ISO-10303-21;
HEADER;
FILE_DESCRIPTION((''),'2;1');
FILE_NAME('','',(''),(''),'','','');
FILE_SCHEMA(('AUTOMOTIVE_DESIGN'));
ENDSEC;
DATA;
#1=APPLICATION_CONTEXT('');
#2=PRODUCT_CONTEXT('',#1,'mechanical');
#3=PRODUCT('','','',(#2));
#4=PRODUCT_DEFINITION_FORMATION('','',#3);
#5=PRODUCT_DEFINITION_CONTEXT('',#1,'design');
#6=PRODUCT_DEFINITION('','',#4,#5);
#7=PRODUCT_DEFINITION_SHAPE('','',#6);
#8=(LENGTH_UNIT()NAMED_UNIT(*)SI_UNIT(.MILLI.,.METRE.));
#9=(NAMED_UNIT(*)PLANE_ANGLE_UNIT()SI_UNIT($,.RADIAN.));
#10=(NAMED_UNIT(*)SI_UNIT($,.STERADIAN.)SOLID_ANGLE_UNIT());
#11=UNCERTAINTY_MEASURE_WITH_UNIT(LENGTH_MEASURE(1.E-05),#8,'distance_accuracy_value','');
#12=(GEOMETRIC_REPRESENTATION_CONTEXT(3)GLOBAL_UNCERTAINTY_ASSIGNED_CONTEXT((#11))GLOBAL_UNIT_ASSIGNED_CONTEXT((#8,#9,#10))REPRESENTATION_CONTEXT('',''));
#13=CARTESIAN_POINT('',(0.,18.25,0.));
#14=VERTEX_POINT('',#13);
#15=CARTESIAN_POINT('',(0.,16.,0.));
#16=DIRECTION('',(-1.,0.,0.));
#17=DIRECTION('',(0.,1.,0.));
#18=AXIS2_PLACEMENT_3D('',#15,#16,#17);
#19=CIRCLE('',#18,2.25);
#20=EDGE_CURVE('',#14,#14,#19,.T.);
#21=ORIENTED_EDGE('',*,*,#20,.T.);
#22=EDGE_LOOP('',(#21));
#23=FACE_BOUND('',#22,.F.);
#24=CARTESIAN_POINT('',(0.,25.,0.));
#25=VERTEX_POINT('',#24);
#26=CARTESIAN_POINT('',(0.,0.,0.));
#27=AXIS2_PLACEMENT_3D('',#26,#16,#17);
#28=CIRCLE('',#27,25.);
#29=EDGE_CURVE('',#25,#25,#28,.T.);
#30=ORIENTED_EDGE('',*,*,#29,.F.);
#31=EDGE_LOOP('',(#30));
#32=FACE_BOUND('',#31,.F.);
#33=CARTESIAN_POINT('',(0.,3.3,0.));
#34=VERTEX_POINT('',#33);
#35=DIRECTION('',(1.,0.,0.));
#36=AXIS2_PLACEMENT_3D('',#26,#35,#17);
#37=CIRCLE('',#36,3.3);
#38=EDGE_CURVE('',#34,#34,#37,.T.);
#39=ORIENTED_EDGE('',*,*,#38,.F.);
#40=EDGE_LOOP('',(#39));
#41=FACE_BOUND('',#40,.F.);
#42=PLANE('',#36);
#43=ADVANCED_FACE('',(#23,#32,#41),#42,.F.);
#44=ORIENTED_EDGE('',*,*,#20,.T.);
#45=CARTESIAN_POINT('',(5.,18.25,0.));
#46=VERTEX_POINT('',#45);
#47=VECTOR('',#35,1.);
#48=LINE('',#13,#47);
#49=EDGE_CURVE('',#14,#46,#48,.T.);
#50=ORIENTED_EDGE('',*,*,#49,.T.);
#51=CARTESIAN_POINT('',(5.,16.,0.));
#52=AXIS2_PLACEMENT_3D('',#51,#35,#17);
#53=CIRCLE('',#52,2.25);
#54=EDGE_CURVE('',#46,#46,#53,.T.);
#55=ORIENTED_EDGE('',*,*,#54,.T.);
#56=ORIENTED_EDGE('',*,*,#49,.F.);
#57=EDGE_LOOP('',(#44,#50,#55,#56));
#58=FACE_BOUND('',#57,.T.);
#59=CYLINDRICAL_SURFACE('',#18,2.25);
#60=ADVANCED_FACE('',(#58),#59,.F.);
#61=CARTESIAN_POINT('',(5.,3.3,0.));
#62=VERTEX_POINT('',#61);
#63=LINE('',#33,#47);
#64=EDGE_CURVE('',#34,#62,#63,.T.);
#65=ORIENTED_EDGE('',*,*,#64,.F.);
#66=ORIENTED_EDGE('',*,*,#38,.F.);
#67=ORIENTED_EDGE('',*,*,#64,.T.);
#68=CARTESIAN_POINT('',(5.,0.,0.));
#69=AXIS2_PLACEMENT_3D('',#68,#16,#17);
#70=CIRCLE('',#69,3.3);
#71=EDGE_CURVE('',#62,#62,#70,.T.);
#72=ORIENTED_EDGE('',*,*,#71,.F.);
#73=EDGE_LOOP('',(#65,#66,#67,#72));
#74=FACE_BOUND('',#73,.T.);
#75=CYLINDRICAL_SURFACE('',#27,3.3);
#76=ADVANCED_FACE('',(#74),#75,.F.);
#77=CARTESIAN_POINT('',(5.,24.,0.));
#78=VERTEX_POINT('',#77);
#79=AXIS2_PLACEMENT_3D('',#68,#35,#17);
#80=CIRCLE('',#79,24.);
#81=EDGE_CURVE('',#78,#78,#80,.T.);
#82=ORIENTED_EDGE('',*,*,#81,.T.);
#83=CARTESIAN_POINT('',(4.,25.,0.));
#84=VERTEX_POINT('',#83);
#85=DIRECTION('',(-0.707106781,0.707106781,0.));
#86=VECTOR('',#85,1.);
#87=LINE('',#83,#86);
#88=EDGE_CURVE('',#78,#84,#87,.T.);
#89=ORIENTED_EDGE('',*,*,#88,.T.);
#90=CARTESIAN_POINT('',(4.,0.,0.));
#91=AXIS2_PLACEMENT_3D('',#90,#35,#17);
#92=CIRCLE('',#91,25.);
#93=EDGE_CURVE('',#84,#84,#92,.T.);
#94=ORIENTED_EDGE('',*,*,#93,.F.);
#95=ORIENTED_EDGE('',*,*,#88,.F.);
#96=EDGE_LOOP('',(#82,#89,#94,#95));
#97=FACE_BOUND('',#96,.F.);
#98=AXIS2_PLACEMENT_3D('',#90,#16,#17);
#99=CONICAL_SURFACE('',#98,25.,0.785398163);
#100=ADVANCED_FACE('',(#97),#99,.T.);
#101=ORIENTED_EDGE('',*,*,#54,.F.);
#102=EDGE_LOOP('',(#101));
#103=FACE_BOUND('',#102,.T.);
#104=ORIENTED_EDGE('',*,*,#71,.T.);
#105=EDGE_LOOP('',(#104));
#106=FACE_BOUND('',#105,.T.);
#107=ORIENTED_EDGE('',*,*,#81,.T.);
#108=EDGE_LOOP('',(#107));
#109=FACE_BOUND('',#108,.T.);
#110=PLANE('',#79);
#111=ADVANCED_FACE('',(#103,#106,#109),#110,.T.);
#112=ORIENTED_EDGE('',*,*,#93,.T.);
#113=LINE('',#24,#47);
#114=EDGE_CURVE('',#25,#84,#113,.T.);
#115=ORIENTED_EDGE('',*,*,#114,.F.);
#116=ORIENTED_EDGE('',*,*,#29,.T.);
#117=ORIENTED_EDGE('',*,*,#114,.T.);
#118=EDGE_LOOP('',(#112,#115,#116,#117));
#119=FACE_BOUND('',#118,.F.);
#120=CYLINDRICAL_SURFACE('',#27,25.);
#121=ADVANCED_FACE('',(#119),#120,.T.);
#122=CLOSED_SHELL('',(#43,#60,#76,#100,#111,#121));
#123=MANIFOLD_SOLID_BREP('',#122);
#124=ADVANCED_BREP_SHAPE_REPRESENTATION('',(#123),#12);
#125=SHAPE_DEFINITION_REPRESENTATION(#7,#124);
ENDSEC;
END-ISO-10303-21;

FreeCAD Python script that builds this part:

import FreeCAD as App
import Part
import Sketcher
from FreeCAD import Vector


def edges_at(feature, points):
    """Names of the edges that pass closest to the given points."""
    edges = feature.Shape.Edges
    near = lambda p: min(range(len(edges)), key=lambda i: edges[i].distToShape(Part.Vertex(*p))[0])
    return sorted({f"Edge{near(p) + 1}" for p in points})

doc = App.newDocument("Part")
body = doc.addObject("PartDesign::Body", "Body")

# Sketch on YZ plane
sketch1 = body.newObject("Sketcher::SketchObject", "Sketch")
sketch1.AttachmentSupport = (doc.getObject("YZ_Plane"), [""])
sketch1.MapMode = "FlatFace"
sketch1.addGeometry(Part.Circle(Vector(0, 0, 0), Vector(0, 0, 1), 25), False)
sketch1.addGeometry(Part.Circle(Vector(16, 0, 0), Vector(0, 0, 1), 2.2), False)
sketch1.addGeometry(Part.Circle(Vector(0, 0, 0), Vector(0, 0, 1), 3.3), False)
sketch1.addConstraint(Sketcher.Constraint("Coincident", 0, 3, -1, 1))
sketch1.addConstraint(Sketcher.Constraint("Coincident", 2, 3, -1, 1))
sketch1.addConstraint(Sketcher.Constraint("PointOnObject", 1, 3, -1))
sketch1.addConstraint(Sketcher.Constraint("Diameter", 0, 50.0))
sketch1.addConstraint(Sketcher.Constraint("Diameter", 1, 4.5))
sketch1.addConstraint(Sketcher.Constraint("Diameter", 2, 6.6))
sketch1.addConstraint(Sketcher.Constraint("DistanceX", -1, 1, 1, 3, 16.0))
pad1 = body.newObject("PartDesign::Pad", "Pad")
pad1.Profile = sketch1
pad1.Length = 5
doc.recompute()

chamfer = body.newObject("PartDesign::Chamfer", "Chamfer")
chamfer.Base = (pad1, edges_at(pad1, [(5, -25, 0)]))
chamfer.Size = 1

doc.recompute()
